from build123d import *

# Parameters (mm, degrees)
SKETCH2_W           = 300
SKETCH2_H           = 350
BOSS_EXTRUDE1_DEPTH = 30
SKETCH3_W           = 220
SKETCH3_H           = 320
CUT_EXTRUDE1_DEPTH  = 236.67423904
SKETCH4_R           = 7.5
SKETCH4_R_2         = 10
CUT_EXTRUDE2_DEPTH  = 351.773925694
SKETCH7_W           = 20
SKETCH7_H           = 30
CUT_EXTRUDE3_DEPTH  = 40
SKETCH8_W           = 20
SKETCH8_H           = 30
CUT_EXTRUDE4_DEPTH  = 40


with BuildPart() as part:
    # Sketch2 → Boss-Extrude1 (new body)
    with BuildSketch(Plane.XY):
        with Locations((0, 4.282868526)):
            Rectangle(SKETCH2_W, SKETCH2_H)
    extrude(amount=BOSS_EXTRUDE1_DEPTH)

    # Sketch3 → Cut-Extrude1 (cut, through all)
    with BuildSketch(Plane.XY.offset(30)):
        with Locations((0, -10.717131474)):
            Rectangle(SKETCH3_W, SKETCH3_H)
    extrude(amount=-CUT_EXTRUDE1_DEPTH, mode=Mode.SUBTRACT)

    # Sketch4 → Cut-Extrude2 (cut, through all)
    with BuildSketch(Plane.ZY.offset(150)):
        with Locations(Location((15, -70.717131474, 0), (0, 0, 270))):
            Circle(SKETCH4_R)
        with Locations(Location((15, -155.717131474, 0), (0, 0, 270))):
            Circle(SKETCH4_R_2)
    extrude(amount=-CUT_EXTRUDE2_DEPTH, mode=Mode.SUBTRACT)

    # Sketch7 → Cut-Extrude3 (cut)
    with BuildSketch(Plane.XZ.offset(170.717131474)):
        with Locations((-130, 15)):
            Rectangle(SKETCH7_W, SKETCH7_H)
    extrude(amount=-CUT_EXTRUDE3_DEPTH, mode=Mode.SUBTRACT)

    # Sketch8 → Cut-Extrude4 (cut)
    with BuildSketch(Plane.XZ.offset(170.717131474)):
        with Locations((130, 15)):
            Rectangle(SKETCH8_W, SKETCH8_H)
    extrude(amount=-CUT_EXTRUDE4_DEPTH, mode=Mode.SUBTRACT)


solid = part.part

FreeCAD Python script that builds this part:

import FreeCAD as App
import Part
import Sketcher
Q = App.Units.Quantity


def add_polygon(sketch, points):
    """Adds a closed chain of lines whose ends are joined by coincident constraints."""
    first, n = sketch.GeometryCount, len(points)
    for a, b in zip(points, points[1:] + points[:1]):
        sketch.addGeometry(Part.LineSegment(App.Vector(*a, 0), App.Vector(*b, 0)), False)
    for i in range(n):
        sketch.addConstraint(Sketcher.Constraint("Coincident", first + i, 2, first + (i + 1) % n, 1))

doc = App.newDocument("Part")
params = doc.addObject("Spreadsheet::Sheet", "Params")
for row, (alias, value) in enumerate([
    ("sketch1_width", "300 mm"),
    ("sketch1_height", "350 mm"),
    ("pad1_length", "30 mm"),
    ("sketch2_width", "220 mm"),
    ("sketch2_height", "320 mm"),
    ("sketch3_diameter", "15 mm"),
    ("sketch3_diameter2", "20 mm"),
    ("sketch4_width", "20 mm"),
    ("sketch4_height", "30 mm"),
    ("pocket3_length", "40 mm"),
    ("sketch5_width", "20 mm"),
    ("sketch5_height", "30 mm"),
    ("pocket4_length", "40 mm"),
], start=1):
    params.set(f"A{row}", alias)
    params.set(f"B{row}", "=" + value)
    params.setAlias(f"B{row}", alias)

body = doc.addObject("PartDesign::Body", "Body")

sketch1 = doc.addObject("Sketcher::SketchObject", "Sketch")
body.addObject(sketch1)
sketch1.AttachmentSupport = (doc.XY_Plane, [""])
sketch1.MapMode = "FlatFace"
add_polygon(sketch1, [(-150, 179), (-150, -171), (150, -171), (150, 179)])
sketch1.addConstraint(Sketcher.Constraint("Vertical", 0))
sketch1.addConstraint(Sketcher.Constraint("Horizontal", 1))
sketch1.addConstraint(Sketcher.Constraint("Vertical", 2))
sketch1.addConstraint(Sketcher.Constraint("Horizontal", 3))
sketch1.addConstraint(Sketcher.Constraint("DistanceX", 1, 1, 1, 2, Q("300 mm")))
sketch1.addConstraint(Sketcher.Constraint("DistanceY", 0, 2, 0, 1, Q("350 mm")))
sketch1.addConstraint(Sketcher.Constraint("DistanceX", 0, 2, -1, 1, Q("150 mm")))
sketch1.addConstraint(Sketcher.Constraint("DistanceY", 0, 2, -1, 1, Q("170.717131 mm")))
sketch1.setExpression("Constraints[8]", "Params.sketch1_width")
sketch1.setExpression("Constraints[9]", "Params.sketch1_height")
pad1 = doc.addObject("PartDesign::Pad", "Pad")
body.addObject(pad1)
pad1.Profile = sketch1
pad1.setExpression("Length", "Params.pad1_length")

sketch2 = doc.addObject("Sketcher::SketchObject", "Sketch001")
body.addObject(sketch2)
sketch2.AttachmentSupport = (doc.XY_Plane, [""])
sketch2.MapMode = "FlatFace"
sketch2.AttachmentOffset = App.Placement(App.Vector(0, 0, 30), App.Rotation())
add_polygon(sketch2, [(-110, 149), (-110, -171), (110, -171), (110, 149)])
sketch2.addConstraint(Sketcher.Constraint("Vertical", 0))
sketch2.addConstraint(Sketcher.Constraint("Horizontal", 1))
sketch2.addConstraint(Sketcher.Constraint("Vertical", 2))
sketch2.addConstraint(Sketcher.Constraint("Horizontal", 3))
sketch2.addConstraint(Sketcher.Constraint("DistanceX", 1, 1, 1, 2, Q("220 mm")))
sketch2.addConstraint(Sketcher.Constraint("DistanceY", 0, 2, 0, 1, Q("320 mm")))
sketch2.addConstraint(Sketcher.Constraint("DistanceX", 0, 2, -1, 1, Q("110 mm")))
sketch2.addConstraint(Sketcher.Constraint("DistanceY", 0, 2, -1, 1, Q("170.717131 mm")))
sketch2.setExpression("Constraints[8]", "Params.sketch2_width")
sketch2.setExpression("Constraints[9]", "Params.sketch2_height")
pocket1 = doc.addObject("PartDesign::Pocket", "Pocket")
body.addObject(pocket1)
pocket1.Profile = sketch2
pocket1.Type = "ThroughAll"

sketch3 = doc.addObject("Sketcher::SketchObject", "Sketch002")
body.addObject(sketch3)
sketch3.AttachmentSupport = (doc.YZ_Plane, [""])
sketch3.MapMode = "FlatFace"
sketch3.AttachmentOffset = App.Placement(App.Vector(0, 0, -150), App.Rotation())
sketch3.addGeometry(Part.Circle(App.Vector(-71, 15, 0), App.Vector(0, 0, 1), 8), False)
sketch3.addGeometry(Part.Circle(App.Vector(-156, 15, 0), App.Vector(0, 0, 1), 10), False)
sketch3.addConstraint(Sketcher.Constraint("Horizontal", 0, 3, 1, 3))
sketch3.addConstraint(Sketcher.Constraint("Diameter", 0, Q("15 mm")))
sketch3.addConstraint(Sketcher.Constraint("Diameter", 1, Q("20 mm")))
sketch3.addConstraint(Sketcher.Constraint("DistanceY", -1, 1, 0, 3, Q("15 mm")))
sketch3.addConstraint(Sketcher.Constraint("DistanceX", 1, 3, 0, 3, Q("85 mm")))
sketch3.addConstraint(Sketcher.Constraint("DistanceX", 0, 3, -1, 1, Q("70.717131 mm")))
sketch3.setExpression("Constraints[1]", "Params.sketch3_diameter")
sketch3.setExpression("Constraints[2]", "Params.sketch3_diameter2")
pocket2 = doc.addObject("PartDesign::Pocket", "Pocket001")
body.addObject(pocket2)
pocket2.Profile = sketch3
pocket2.Type = "ThroughAll"
pocket2.Reversed = True

sketch4 = doc.addObject("Sketcher::SketchObject", "Sketch003")
body.addObject(sketch4)
sketch4.AttachmentSupport = (doc.XZ_Plane, [""])
sketch4.MapMode = "FlatFace"
sketch4.AttachmentOffset = App.Placement(App.Vector(0, 0, 170.717131), App.Rotation())
add_polygon(sketch4, [(-140, 30), (-140, 0), (-120, 0), (-120, 30)])
sketch4.addConstraint(Sketcher.Constraint("Vertical", 0))
sketch4.addConstraint(Sketcher.Constraint("Horizontal", 1))
sketch4.addConstraint(Sketcher.Constraint("Vertical", 2))
sketch4.addConstraint(Sketcher.Constraint("Horizontal", 3))
sketch4.addConstraint(Sketcher.Constraint("PointOnObject", 0, 2, -1))
sketch4.addConstraint(Sketcher.Constraint("DistanceX", 1, 1, 1, 2, Q("20 mm")))
sketch4.addConstraint(Sketcher.Constraint("DistanceY", 0, 2, 0, 1, Q("30 mm")))
sketch4.addConstraint(Sketcher.Constraint("DistanceX", 0, 2, -1, 1, Q("140 mm")))
sketch4.setExpression("Constraints[9]", "Params.sketch4_width")
sketch4.setExpression("Constraints[10]", "Params.sketch4_height")
pocket3 = doc.addObject("PartDesign::Pocket", "Pocket002")
body.addObject(pocket3)
pocket3.Profile = sketch4
pocket3.setExpression("Length", "Params.pocket3_length")

sketch5 = doc.addObject("Sketcher::SketchObject", "Sketch004")
body.addObject(sketch5)
sketch5.AttachmentSupport = (doc.XZ_Plane, [""])
sketch5.MapMode = "FlatFace"
sketch5.AttachmentOffset = App.Placement(App.Vector(0, 0, 170.717131), App.Rotation())
add_polygon(sketch5, [(120, 30), (120, 0), (140, 0), (140, 30)])
sketch5.addConstraint(Sketcher.Constraint("Vertical", 0))
sketch5.addConstraint(Sketcher.Constraint("Horizontal", 1))
sketch5.addConstraint(Sketcher.Constraint("Vertical", 2))
sketch5.addConstraint(Sketcher.Constraint("Horizontal", 3))
sketch5.addConstraint(Sketcher.Constraint("PointOnObject", 0, 2, -1))
sketch5.addConstraint(Sketcher.Constraint("DistanceX", 1, 1, 1, 2, Q("20 mm")))
sketch5.addConstraint(Sketcher.Constraint("DistanceY", 0, 2, 0, 1, Q("30 mm")))
sketch5.addConstraint(Sketcher.Constraint("DistanceX", -1, 1, 0, 2, Q("120 mm")))
sketch5.setExpression("Constraints[9]", "Params.sketch5_width")
sketch5.setExpression("Constraints[10]", "Params.sketch5_height")
pocket4 = doc.addObject("PartDesign::Pocket", "Pocket003")
body.addObject(pocket4)
pocket4.Profile = sketch5
pocket4.setExpression("Length", "Params.pocket4_length")

doc.recompute()
